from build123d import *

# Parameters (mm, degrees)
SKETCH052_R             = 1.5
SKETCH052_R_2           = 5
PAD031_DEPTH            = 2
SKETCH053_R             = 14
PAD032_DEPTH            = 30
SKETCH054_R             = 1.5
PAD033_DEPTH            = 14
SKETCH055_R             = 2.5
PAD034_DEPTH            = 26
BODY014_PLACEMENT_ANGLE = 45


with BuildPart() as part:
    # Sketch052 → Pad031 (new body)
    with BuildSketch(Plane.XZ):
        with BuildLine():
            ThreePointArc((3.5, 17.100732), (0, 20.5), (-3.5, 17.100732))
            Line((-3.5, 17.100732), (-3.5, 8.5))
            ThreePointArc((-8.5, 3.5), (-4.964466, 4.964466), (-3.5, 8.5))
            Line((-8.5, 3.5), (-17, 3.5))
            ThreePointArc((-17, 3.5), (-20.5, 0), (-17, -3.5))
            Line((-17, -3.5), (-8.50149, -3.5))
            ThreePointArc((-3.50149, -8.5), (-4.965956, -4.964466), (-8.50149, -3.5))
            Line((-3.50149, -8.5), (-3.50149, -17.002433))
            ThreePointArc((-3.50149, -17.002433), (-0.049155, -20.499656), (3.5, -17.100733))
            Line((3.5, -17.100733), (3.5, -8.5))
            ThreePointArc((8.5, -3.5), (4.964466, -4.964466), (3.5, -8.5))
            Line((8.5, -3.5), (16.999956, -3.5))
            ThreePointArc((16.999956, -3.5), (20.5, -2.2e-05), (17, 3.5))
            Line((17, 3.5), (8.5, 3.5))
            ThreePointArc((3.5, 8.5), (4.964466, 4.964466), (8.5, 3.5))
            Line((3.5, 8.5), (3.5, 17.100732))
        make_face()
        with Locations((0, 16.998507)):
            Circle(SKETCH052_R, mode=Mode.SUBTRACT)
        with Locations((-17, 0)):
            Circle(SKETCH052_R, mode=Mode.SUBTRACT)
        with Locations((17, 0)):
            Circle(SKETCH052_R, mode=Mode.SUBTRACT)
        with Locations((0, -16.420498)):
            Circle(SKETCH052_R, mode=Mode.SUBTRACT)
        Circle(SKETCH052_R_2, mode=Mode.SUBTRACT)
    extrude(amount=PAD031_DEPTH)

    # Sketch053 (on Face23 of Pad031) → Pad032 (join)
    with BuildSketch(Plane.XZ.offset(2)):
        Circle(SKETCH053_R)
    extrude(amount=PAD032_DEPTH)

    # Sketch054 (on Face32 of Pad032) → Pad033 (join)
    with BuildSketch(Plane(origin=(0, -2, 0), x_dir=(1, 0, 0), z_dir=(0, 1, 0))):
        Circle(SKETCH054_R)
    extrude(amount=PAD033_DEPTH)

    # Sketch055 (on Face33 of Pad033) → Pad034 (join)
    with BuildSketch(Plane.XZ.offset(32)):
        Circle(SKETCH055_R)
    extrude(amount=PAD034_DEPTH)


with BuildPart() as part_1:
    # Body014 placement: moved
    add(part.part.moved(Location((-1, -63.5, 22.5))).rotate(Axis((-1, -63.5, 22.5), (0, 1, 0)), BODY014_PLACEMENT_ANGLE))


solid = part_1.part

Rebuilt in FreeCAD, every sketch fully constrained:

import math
import FreeCAD as App
import Part
import Sketcher

V = App.Vector

doc = App.newDocument("Part")
body = doc.addObject("PartDesign::Body", "Body")

# Sketch on XZ plane
sketch1 = body.newObject("Sketcher::SketchObject", "Sketch")
sketch1.AttachmentSupport = (doc.getObject("XZ_Plane"), [""])
sketch1.MapMode = "FlatFace"
sketch1.addGeometry(Part.ArcOfCircle(Part.Circle(V(0, 17, 0), V(0, 0, 1), 3.5), math.radians(2), math.radians(178)), False)
sketch1.addGeometry(Part.LineSegment(V(-3.5, 17.1, 0), V(-3.5, 8.5, 0)), False)
sketch1.addGeometry(Part.ArcOfCircle(Part.Circle(V(-8.5, 8.5, 0), V(0, 0, 1), 5), math.radians(-90), math.radians(0)), False)
sketch1.addGeometry(Part.LineSegment(V(-8.5, 3.5, 0), V(-17, 3.5, 0)), False)
sketch1.addGeometry(Part.ArcOfCircle(Part.Circle(V(-17, 0, 0), V(0, 0, 1), 3.5), math.radians(90), math.radians(270)), False)
sketch1.addGeometry(Part.LineSegment(V(-17, -3.5, 0), V(-8.5, -3.5, 0)), False)
sketch1.addGeometry(Part.ArcOfCircle(Part.Circle(V(-8.5, -8.5, 0), V(0, 0, 1), 5), math.radians(0), math.radians(90)), False)
sketch1.addGeometry(Part.LineSegment(V(-3.5, -8.5, 0), V(-3.5, -17, 0)), False)
sketch1.addGeometry(Part.ArcOfCircle(Part.Circle(V(0, -17, 0), V(0, 0, 1), 3.5), math.radians(-180), math.radians(-2)), False)
sketch1.addGeometry(Part.LineSegment(V(3.5, -17.1, 0), V(3.5, -8.5, 0)), False)
sketch1.addGeometry(Part.ArcOfCircle(Part.Circle(V(8.5, -8.5, 0), V(0, 0, 1), 5), math.radians(90), math.radians(180)), False)
sketch1.addGeometry(Part.LineSegment(V(8.5, -3.5, 0), V(17, -3.5, 0)), False)
sketch1.addGeometry(Part.ArcOfCircle(Part.Circle(V(17, 0, 0), V(0, 0, 1), 3.5), math.radians(-90), math.radians(90)), False)
sketch1.addGeometry(Part.LineSegment(V(17, 3.5, 0), V(8.5, 3.5, 0)), False)
sketch1.addGeometry(Part.ArcOfCircle(Part.Circle(V(8.5, 8.5, 0), V(0, 0, 1), 5), math.radians(180), math.radians(270)), False)
sketch1.addGeometry(Part.LineSegment(V(3.5, 8.5, 0), V(3.5, 17.1, 0)), False)
sketch1.addGeometry(Part.Circle(V(-17, 0, 0), V(0, 0, 1), 1.5), False)
sketch1.addGeometry(Part.Circle(V(0, -16.4, 0), V(0, 0, 1), 1.5), False)
sketch1.addGeometry(Part.Circle(V(0, 0, 0), V(0, 0, 1), 5), False)
sketch1.addGeometry(Part.Circle(V(17, 0, 0), V(0, 0, 1), 1.5), False)
sketch1.addGeometry(Part.Circle(V(0, 17, 0), V(0, 0, 1), 1.5), False)
sketch1.addConstraint(Sketcher.Constraint("Coincident", 0, 2, 1, 1))
sketch1.addConstraint(Sketcher.Constraint("Tangent", 1, 2, 2, 2))
sketch1.addConstraint(Sketcher.Constraint("Tangent", 2, 1, 3, 1))
sketch1.addConstraint(Sketcher.Constraint("Tangent", 3, 2, 4, 1))
sketch1.addConstraint(Sketcher.Constraint("Tangent", 4, 2, 5, 1))
sketch1.addConstraint(Sketcher.Constraint("Tangent", 5, 2, 6, 2))
sketch1.addConstraint(Sketcher.Constraint("Tangent", 6, 1, 7, 1))
sketch1.addConstraint(Sketcher.Constraint("Coincident", 7, 2, 8, 1))
sketch1.addConstraint(Sketcher.Constraint("Coincident", 8, 2, 9, 1))
sketch1.addConstraint(Sketcher.Constraint("Tangent", 9, 2, 10, 2))
sketch1.addConstraint(Sketcher.Constraint("Tangent", 10, 1, 11, 1))
sketch1.addConstraint(Sketcher.Constraint("Coincident", 11, 2, 12, 1))
sketch1.addConstraint(Sketcher.Constraint("Tangent", 12, 2, 13, 1))
sketch1.addConstraint(Sketcher.Constraint("Tangent", 13, 2, 14, 2))
sketch1.addConstraint(Sketcher.Constraint("Tangent", 14, 1, 15, 1))
sketch1.addConstraint(Sketcher.Constraint("Coincident", 15, 2, 0, 1))
sketch1.addConstraint(Sketcher.Constraint("Vertical", 1))
sketch1.addConstraint(Sketcher.Constraint("Horizontal", 3))
sketch1.addConstraint(Sketcher.Constraint("Horizontal", 5))
sketch1.addConstraint(Sketcher.Constraint("Vertical", 7))
sketch1.addConstraint(Sketcher.Constraint("Vertical", 9))
sketch1.addConstraint(Sketcher.Constraint("Horizontal", 11))
sketch1.addConstraint(Sketcher.Constraint("Horizontal", 13))
sketch1.addConstraint(Sketcher.Constraint("Vertical", 15))
sketch1.addConstraint(Sketcher.Constraint("Coincident", 18, 3, -1, 1))
sketch1.addConstraint(Sketcher.Constraint("Coincident", 16, 3, 4, 3))
sketch1.addConstraint(Sketcher.Constraint("Coincident", 19, 3, 12, 3))
sketch1.addConstraint(Sketcher.Constraint("Coincident", 20, 3, 0, 3))
sketch1.addConstraint(Sketcher.Constraint("Equal", 2, 6))
sketch1.addConstraint(Sketcher.Constraint("Equal", 0, 8))
sketch1.addConstraint(Sketcher.Constraint("Equal", 6, 10))
sketch1.addConstraint(Sketcher.Constraint("Equal", 4, 12))
sketch1.addConstraint(Sketcher.Constraint("Equal", 10, 14))
sketch1.addConstraint(Sketcher.Constraint("Equal", 16, 17))
sketch1.addConstraint(Sketcher.Constraint("Equal", 14, 18))
sketch1.addConstraint(Sketcher.Constraint("Equal", 17, 19))
sketch1.addConstraint(Sketcher.Constraint("Equal", 19, 20))
sketch1.addConstraint(Sketcher.Constraint("Symmetric", 0, 3, 8, 3, -1, 1))
sketch1.addConstraint(Sketcher.Constraint("Symmetric", 2, 3, 10, 3, -1, 1))
sketch1.addConstraint(Sketcher.Constraint("Symmetric", 4, 3, 12, 3, -2))
sketch1.addConstraint(Sketcher.Constraint("Symmetric", 0, 2, 15, 2, -2))
sketch1.addConstraint(Sketcher.Constraint("PointOnObject", 17, 3, -2))
sketch1.addConstraint(Sketcher.Constraint("Diameter", 16, 3.0))
sketch1.addConstraint(Sketcher.Constraint("Diameter", 18, 10.0))
sketch1.addConstraint(Sketcher.Constraint("Radius", 4, 3.5))
sketch1.addConstraint(Sketcher.Constraint("DistanceX", 3, 2, 3, 1, 8.5))
sketch1.addConstraint(Sketcher.Constraint("DistanceX", 4, 3, -1, 1, 17.0))
sketch1.addConstraint(Sketcher.Constraint("Radius", 0, 3.501493))
sketch1.addConstraint(Sketcher.Constraint("DistanceY", 17, 3, 10, 3, 7.920498))
sketch1.addConstraint(Sketcher.Constraint("DistanceY", 8, 2, 7, 2, 0.0983))
sketch1.addConstraint(Sketcher.Constraint("DistanceX", 11, 1, 11, 2, 8.499956))
sketch1.addConstraint(Sketcher.Constraint("DistanceY", 1, 2, 1, 1, 8.600732))
pad1 = body.newObject("PartDesign::Pad", "Pad")
pad1.Profile = sketch1
pad1.Length = 2

# Sketch on XZ plane
sketch2 = body.newObject("Sketcher::SketchObject", "Sketch001")
sketch2.AttachmentSupport = (doc.getObject("XZ_Plane"), [""])
sketch2.MapMode = "FlatFace"
sketch2.AttachmentOffset = App.Placement(V(0, 0, 2), App.Rotation())
sketch2.addGeometry(Part.Circle(V(0, 0, 0), V(0, 0, 1), 14), False)
sketch2.addConstraint(Sketcher.Constraint("Coincident", 0, 3, -1, 1))
sketch2.addConstraint(Sketcher.Constraint("Diameter", 0, 28.0))
pad2 = body.newObject("PartDesign::Pad", "Pad001")
pad2.Profile = sketch2
pad2.Length = 30

# Sketch on XZ plane
sketch3 = body.newObject("Sketcher::SketchObject", "Sketch002")
sketch3.AttachmentSupport = (doc.getObject("XZ_Plane"), [""])
sketch3.MapMode = "FlatFace"
sketch3.AttachmentOffset = App.Placement(V(0, 0, 2), App.Rotation())
sketch3.addGeometry(Part.Circle(V(0, 0, 0), V(0, 0, 1), 1.5), False)
sketch3.addConstraint(Sketcher.Constraint("Coincident", 0, 3, -1, 1))
sketch3.addConstraint(Sketcher.Constraint("Diameter", 0, 3.0))
pad3 = body.newObject("PartDesign::Pad", "Pad002")
pad3.Profile = sketch3
pad3.Length = 14
pad3.Reversed = True

# Sketch on XZ plane
sketch4 = body.newObject("Sketcher::SketchObject", "Sketch003")
sketch4.AttachmentSupport = (doc.getObject("XZ_Plane"), [""])
sketch4.MapMode = "FlatFace"
sketch4.AttachmentOffset = App.Placement(V(0, 0, 32), App.Rotation())
sketch4.addGeometry(Part.Circle(V(0, 0, 0), V(0, 0, 1), 2.5), False)
sketch4.addConstraint(Sketcher.Constraint("Coincident", 0, 3, -1, 1))
sketch4.addConstraint(Sketcher.Constraint("Diameter", 0, 5.0))
pad4 = body.newObject("PartDesign::Pad", "Pad003")
pad4.Profile = sketch4
pad4.Length = 26
body2 = doc.addObject("PartDesign::Body", "Body001")
doc.recompute()

body.Placement = App.Placement(V(-1, -63.5, 22.5), App.Rotation(V(0, 1, 0), 45))
boolean = body2.newObject("PartDesign::Boolean", "Boolean")
boolean.Type = "Fuse"
boolean.addObjects([body])

doc.recompute()
